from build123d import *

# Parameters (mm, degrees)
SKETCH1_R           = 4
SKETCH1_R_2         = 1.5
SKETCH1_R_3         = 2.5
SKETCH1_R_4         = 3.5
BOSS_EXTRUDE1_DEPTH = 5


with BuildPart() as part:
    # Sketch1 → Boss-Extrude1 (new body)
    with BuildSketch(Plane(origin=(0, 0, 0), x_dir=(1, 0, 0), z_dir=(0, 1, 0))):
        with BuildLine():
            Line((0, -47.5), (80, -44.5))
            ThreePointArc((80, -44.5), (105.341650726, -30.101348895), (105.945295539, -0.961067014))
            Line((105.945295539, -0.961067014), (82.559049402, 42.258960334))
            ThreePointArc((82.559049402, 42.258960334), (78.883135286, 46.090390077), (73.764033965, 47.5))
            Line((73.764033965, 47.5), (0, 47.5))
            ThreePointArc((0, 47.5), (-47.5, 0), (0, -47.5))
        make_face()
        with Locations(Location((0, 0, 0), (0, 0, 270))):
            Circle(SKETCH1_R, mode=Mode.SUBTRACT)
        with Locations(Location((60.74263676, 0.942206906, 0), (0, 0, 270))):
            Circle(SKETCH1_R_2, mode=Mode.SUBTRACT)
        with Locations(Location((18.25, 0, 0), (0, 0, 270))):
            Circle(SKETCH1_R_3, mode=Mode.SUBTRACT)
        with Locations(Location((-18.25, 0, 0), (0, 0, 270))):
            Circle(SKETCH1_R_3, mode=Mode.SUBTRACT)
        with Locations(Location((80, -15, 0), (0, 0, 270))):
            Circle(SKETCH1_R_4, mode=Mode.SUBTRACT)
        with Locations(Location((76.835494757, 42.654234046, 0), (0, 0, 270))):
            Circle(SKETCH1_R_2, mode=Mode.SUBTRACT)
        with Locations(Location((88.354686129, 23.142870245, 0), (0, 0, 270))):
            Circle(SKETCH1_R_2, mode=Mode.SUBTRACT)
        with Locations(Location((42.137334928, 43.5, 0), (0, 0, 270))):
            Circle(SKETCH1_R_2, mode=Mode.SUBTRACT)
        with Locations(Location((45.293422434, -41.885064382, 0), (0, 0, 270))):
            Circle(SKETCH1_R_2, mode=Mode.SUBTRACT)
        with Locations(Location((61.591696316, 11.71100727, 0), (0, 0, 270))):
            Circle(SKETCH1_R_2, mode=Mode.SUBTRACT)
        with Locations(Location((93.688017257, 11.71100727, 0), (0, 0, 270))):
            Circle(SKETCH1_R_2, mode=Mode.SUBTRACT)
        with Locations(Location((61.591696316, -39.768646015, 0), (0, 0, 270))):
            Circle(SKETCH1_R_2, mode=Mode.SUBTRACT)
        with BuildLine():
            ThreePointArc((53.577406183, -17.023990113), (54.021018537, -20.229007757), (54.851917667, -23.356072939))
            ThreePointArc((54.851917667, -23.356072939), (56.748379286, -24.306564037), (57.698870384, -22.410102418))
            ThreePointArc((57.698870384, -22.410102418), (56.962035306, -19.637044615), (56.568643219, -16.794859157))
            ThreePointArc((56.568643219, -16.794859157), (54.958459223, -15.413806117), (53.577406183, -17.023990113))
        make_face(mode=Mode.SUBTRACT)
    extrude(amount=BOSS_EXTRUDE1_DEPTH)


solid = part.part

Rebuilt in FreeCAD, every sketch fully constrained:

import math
import FreeCAD as App
import Part
import Sketcher

doc = App.newDocument("Part")
params = doc.addObject("Spreadsheet::Sheet", "Params")
for row, (alias, value) in enumerate([
    ("sketch1_diameter", "5 mm"),
    ("sketch1_diameter2", "8 mm"),
    ("sketch1_diameter3", "3 mm"),
    ("sketch1_diameter4", "7 mm"),
    ("sketch1_radius", "10 mm"),
    ("pad1_length", "5 mm"),
], start=1):
    params.set(f"A{row}", alias)
    params.set(f"B{row}", "=" + value)
    params.setAlias(f"B{row}", alias)

body = doc.addObject("PartDesign::Body", "Body")

# Sketch on XZ plane
sketch1 = body.newObject("Sketcher::SketchObject", "Sketch")
sketch1.AttachmentSupport = (doc.getObject("XZ_Plane"), [""])
sketch1.MapMode = "FlatFace"
sketch1.addGeometry([
    Part.LineSegment(App.Vector(0, 47.5, 0), App.Vector(80, 44.5, 0)),  # 0
    Part.ArcOfCircle(Part.Circle(App.Vector(80, 15, 0), App.Vector(0, 0, 1), 29.5), math.radians(-28.417707), math.radians(90)),  # 1
    Part.LineSegment(App.Vector(105.945296, 0.961067, 0), App.Vector(82.559049, -42.25896, 0)),  # 2
    Part.ArcOfCircle(Part.Circle(App.Vector(73.764034, -37.5, 0), App.Vector(0, 0, 1), 10), math.radians(-90), math.radians(-28.417707)),  # 3
    Part.LineSegment(App.Vector(73.764034, -47.5, 0), App.Vector(0, -47.5, 0)),  # 4
    Part.ArcOfCircle(Part.Circle(App.Vector(0, 0, 0), App.Vector(0, 0, 1), 47.5), math.radians(90), math.radians(270)),  # 5
    Part.Circle(App.Vector(-18.25, 0, 0), App.Vector(0, 0, 1), 2.5),  # 6
    Part.Circle(App.Vector(0, 0, 0), App.Vector(0, 0, 1), 4),  # 7
    Part.Circle(App.Vector(18.25, 0, 0), App.Vector(0, 0, 1), 2.5),  # 8
    Part.Circle(App.Vector(45.293422, 41.885064, 0), App.Vector(0, 0, 1), 1.5),  # 9
    Part.Circle(App.Vector(61.591696, 39.768646, 0), App.Vector(0, 0, 1), 1.5),  # 10
    Part.ArcOfCircle(Part.Circle(App.Vector(80, 15, 0), App.Vector(0, 0, 1), 26.5), math.radians(161.619655), math.radians(175.619655)),  # 11
    Part.ArcOfCircle(Part.Circle(App.Vector(55.073025, 16.909425, 0), App.Vector(0, 0, 1), 1.5), math.radians(175.619655), math.radians(355.619655)),  # 12
    Part.ArcOfCircle(Part.Circle(App.Vector(80, 15, 0), App.Vector(0, 0, 1), 23.5), math.radians(161.619655), math.radians(175.619655)),  # 13
    Part.ArcOfCircle(Part.Circle(App.Vector(56.275394, 22.883088, 0), App.Vector(0, 0, 1), 1.5), math.radians(-18.380345), math.radians(161.619655)),  # 14
    Part.Circle(App.Vector(80, 15, 0), App.Vector(0, 0, 1), 3.5),  # 15
    Part.Circle(App.Vector(60.742637, -0.942207, 0), App.Vector(0, 0, 1), 1.5),  # 16
    Part.Circle(App.Vector(61.591696, -11.711007, 0), App.Vector(0, 0, 1), 1.5),  # 17
    Part.Circle(App.Vector(93.688017, -11.711007, 0), App.Vector(0, 0, 1), 1.5),  # 18
    Part.Circle(App.Vector(42.137335, -43.5, 0), App.Vector(0, 0, 1), 1.5),  # 19
    Part.Circle(App.Vector(88.354686, -23.14287, 0), App.Vector(0, 0, 1), 1.5),  # 20
    Part.Circle(App.Vector(76.835495, -42.654234, 0), App.Vector(0, 0, 1), 1.5),  # 21
], False)
sketch1.addConstraint([
    Sketcher.Constraint("Coincident", 0, 2, 1, 2),
    Sketcher.Constraint("Tangent", 1, 1, 2, 1),
    Sketcher.Constraint("Tangent", 2, 2, 3, 2),
    Sketcher.Constraint("Tangent", 3, 1, 4, 1),
    Sketcher.Constraint("Tangent", 4, 2, 5, 2),
    Sketcher.Constraint("Coincident", 5, 1, 0, 1),
    Sketcher.Constraint("Tangent", 11, 2, 12, 1),
    Sketcher.Constraint("Tangent", 12, 2, 13, 2),
    Sketcher.Constraint("Tangent", 13, 1, 14, 1),
    Sketcher.Constraint("Tangent", 14, 2, 11, 1),
    Sketcher.Constraint("Horizontal", 4),
    Sketcher.Constraint("Coincident", 5, 3, -1, 1),
    Sketcher.Constraint("Coincident", 7, 3, -1, 1),
    Sketcher.Constraint("Coincident", 11, 3, 1, 3),
    Sketcher.Constraint("Coincident", 13, 3, 1, 3),
    Sketcher.Constraint("Coincident", 15, 3, 1, 3),
    Sketcher.Constraint("Equal", 6, 8),
    Sketcher.Constraint("Equal", 9, 10),
    Sketcher.Constraint("Equal", 10, 12),
    Sketcher.Constraint("Equal", 14, 16),
    Sketcher.Constraint("Equal", 16, 17),
    Sketcher.Constraint("Equal", 17, 18),
    Sketcher.Constraint("Equal", 18, 19),
    Sketcher.Constraint("Equal", 19, 20),
    Sketcher.Constraint("Equal", 20, 21),
    Sketcher.Constraint("Symmetric", 6, 3, 8, 3, -1, 1),
    Sketcher.Constraint("PointOnObject", 6, 3, -1),
    Sketcher.Constraint("PointOnObject", 5, 1, -2),
    Sketcher.Constraint("Horizontal", 17, 3, 18, 3),
    Sketcher.Constraint("Vertical", 10, 3, 17, 3),
    Sketcher.Constraint("Vertical", 15, 3, 0, 2),
    Sketcher.Constraint("Diameter", 6, 5.0),
    Sketcher.Constraint("Diameter", 7, 8.0),
    Sketcher.Constraint("Diameter", 9, 3.0),
    Sketcher.Constraint("Diameter", 15, 7.0),
    Sketcher.Constraint("Radius", 3, 10.0),
    Sketcher.Constraint("Radius", 1, 29.5),
    Sketcher.Constraint("Radius", 5, 47.5),
    Sketcher.Constraint("Radius", 11, 26.5),
    Sketcher.Constraint("DistanceX", -1, 1, 1, 3, 80.0),
    Sketcher.Constraint("DistanceY", -1, 1, 1, 3, 15.0),
    Sketcher.Constraint("DistanceY", 19, 3, 3, 3, 6.0),
    Sketcher.Constraint("DistanceX", 6, 3, 8, 3, 36.5),
    Sketcher.Constraint("DistanceY", 17, 3, 16, 3, 10.7688),
    Sketcher.Constraint("DistanceX", 19, 3, 3, 3, 31.626699),
    Sketcher.Constraint("DistanceX", 19, 3, 16, 3, 18.605302),
    Sketcher.Constraint("DistanceX", 17, 3, 21, 3, 15.243798),
    Sketcher.Constraint("DistanceX", 4, 2, 4, 1, 73.764034),
    Sketcher.Constraint("DistanceY", 20, 3, -1, 1, 23.14287),
    Sketcher.Constraint("DistanceY", -1, 1, 11, 2, 17.02399),
    Sketcher.Constraint("DistanceX", -1, 1, 13, 1, 57.69887),
    Sketcher.Constraint("DistanceY", 10, 3, 9, 3, 2.116418),
    Sketcher.Constraint("DistanceX", 12, 3, 10, 3, 6.518672),
    Sketcher.Constraint("DistanceY", 12, 3, 10, 3, 22.859221),
    Sketcher.Constraint("DistanceX", 9, 3, 14, 3, 10.981972),
    Sketcher.Constraint("DistanceY", 16, 3, 12, 3, 17.851632),
    Sketcher.Constraint("DistanceX", 17, 3, 18, 3, 32.096321),
    Sketcher.Constraint("DistanceX", 20, 3, 18, 3, 5.333331),
    Sketcher.Constraint("DistanceY", 21, 3, -1, 1, 42.654234),
])
sketch1.setExpression("Constraints[31]", "Params.sketch1_diameter")
sketch1.setExpression("Constraints[32]", "Params.sketch1_diameter2")
sketch1.setExpression("Constraints[33]", "Params.sketch1_diameter3")
sketch1.setExpression("Constraints[34]", "Params.sketch1_diameter4")
sketch1.setExpression("Constraints[35]", "Params.sketch1_radius")
pad1 = body.newObject("PartDesign::Pad", "Pad")
pad1.Profile = sketch1
pad1.setExpression("Length", "Params.pad1_length")
pad1.Reversed = True

doc.recompute()
